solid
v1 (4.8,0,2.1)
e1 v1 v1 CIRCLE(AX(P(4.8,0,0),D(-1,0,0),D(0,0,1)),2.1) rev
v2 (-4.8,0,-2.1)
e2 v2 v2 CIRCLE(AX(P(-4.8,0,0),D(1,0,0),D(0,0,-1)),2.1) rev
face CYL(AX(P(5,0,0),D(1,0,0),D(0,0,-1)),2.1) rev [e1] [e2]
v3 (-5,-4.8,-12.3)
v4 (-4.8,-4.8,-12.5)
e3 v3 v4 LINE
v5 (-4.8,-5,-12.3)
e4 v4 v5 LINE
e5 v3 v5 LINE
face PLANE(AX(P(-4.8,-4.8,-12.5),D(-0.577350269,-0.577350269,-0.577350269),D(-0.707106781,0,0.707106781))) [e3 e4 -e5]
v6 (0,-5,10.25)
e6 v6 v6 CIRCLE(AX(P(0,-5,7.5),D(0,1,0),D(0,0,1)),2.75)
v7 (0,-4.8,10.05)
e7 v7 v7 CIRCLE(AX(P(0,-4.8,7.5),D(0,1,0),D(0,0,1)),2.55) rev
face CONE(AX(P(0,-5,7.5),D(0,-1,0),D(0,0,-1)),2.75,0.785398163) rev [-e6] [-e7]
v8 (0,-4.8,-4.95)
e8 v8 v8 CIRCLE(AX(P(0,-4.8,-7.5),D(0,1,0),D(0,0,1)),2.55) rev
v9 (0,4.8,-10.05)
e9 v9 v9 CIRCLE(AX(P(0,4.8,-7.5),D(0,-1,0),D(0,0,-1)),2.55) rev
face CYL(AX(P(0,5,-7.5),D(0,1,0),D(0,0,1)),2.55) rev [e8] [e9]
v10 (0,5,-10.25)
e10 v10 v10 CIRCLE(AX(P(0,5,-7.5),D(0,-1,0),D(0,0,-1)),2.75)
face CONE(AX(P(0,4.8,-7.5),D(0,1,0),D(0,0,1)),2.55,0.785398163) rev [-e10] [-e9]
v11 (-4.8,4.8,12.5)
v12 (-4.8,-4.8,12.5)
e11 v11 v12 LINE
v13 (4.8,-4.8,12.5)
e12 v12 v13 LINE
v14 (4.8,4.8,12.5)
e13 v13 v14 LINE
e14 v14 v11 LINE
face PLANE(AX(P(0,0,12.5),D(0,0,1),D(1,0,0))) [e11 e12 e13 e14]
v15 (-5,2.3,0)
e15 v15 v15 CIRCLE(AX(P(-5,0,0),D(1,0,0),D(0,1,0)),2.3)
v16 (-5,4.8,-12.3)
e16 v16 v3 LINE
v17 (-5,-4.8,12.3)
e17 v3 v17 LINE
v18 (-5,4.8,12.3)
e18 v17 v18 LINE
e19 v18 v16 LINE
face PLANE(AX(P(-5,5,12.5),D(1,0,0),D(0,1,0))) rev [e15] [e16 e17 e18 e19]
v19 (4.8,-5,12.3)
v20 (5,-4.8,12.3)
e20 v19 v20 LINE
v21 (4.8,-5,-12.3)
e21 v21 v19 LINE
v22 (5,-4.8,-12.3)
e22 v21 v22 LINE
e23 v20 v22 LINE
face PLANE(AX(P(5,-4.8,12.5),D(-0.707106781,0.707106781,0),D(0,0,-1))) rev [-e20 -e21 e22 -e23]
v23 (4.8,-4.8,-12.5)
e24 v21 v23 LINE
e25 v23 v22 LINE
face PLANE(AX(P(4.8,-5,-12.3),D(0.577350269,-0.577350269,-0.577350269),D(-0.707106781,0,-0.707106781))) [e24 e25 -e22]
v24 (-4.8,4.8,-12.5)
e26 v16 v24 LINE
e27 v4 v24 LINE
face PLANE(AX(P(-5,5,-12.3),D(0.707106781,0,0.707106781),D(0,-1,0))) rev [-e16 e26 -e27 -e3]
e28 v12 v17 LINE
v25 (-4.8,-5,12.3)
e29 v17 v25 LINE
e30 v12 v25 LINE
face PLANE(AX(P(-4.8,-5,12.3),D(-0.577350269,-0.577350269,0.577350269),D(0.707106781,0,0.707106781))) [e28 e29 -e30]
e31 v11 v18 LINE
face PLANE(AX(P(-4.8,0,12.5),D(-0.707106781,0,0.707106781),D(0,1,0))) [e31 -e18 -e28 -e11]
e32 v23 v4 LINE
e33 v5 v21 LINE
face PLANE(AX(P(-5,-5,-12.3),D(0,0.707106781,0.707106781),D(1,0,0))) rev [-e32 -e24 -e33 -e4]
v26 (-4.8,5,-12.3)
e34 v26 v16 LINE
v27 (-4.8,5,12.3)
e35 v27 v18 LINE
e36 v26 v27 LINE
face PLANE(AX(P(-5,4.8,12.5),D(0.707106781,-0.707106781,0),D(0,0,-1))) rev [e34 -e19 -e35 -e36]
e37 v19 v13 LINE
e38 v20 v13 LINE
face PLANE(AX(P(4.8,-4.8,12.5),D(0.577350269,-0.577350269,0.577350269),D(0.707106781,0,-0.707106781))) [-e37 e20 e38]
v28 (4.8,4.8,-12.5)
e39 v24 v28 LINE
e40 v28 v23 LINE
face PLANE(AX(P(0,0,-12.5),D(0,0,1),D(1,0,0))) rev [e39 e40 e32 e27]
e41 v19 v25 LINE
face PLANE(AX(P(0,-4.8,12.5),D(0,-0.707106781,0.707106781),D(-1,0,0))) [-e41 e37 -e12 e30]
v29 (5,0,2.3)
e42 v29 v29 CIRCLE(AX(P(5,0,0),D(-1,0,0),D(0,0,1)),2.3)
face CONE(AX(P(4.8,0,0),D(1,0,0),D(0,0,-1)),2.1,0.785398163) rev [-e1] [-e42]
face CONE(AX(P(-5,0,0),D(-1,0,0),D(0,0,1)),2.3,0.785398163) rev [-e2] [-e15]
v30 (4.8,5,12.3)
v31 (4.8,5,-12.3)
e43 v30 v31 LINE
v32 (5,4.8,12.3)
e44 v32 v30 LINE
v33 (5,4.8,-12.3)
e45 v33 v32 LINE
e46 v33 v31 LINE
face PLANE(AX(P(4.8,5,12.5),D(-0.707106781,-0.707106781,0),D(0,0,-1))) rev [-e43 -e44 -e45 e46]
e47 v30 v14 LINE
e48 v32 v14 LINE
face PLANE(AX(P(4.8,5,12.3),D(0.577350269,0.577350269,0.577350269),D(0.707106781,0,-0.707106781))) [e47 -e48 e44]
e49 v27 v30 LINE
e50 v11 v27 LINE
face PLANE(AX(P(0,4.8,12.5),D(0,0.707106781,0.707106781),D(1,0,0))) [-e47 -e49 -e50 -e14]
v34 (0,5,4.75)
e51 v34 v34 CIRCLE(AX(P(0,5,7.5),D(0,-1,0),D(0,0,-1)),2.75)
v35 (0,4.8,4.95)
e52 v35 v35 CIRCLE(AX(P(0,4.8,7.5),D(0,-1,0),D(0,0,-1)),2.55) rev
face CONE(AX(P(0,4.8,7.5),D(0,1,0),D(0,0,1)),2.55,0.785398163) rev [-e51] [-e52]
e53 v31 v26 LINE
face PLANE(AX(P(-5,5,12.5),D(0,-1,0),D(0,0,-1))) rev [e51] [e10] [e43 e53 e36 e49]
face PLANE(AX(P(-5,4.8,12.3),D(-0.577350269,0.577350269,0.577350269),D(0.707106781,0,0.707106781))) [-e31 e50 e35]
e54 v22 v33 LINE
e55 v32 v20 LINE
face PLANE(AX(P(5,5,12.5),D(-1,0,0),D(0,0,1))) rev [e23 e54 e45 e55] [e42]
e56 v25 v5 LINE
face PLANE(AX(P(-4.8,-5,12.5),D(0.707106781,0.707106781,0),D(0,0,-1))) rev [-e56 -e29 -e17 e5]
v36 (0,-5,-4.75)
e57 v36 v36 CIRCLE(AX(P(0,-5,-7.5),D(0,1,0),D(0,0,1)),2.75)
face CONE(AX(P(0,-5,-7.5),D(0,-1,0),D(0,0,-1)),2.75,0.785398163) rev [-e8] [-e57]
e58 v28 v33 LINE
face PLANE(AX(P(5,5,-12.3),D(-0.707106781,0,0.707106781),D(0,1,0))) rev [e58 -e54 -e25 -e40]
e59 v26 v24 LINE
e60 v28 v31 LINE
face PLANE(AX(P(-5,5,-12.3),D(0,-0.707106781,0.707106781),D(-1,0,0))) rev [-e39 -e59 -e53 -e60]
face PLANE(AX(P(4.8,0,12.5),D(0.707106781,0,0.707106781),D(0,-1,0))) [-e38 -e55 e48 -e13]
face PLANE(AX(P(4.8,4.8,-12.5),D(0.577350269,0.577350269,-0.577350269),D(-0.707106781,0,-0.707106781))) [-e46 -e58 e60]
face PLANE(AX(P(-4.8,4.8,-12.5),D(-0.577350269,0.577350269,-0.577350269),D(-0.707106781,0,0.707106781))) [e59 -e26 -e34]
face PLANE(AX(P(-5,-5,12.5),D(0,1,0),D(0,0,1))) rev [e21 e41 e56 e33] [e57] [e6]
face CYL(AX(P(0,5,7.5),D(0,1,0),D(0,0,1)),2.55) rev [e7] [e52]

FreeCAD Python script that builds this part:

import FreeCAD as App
import Part
import Sketcher

V = App.Vector


def add_polygon(sketch, points):
    """Adds a closed chain of lines whose ends are joined by coincident constraints."""
    first, n = sketch.GeometryCount, len(points)
    for a, b in zip(points, points[1:] + points[:1]):
        sketch.addGeometry(Part.LineSegment(App.Vector(*a, 0), App.Vector(*b, 0)), False)
    for i in range(n):
        sketch.addConstraint(Sketcher.Constraint("Coincident", first + i, 2, first + (i + 1) % n, 1))

doc = App.newDocument("Part")
params = doc.addObject("Spreadsheet::Sheet", "Params")
for row, (alias, value) in enumerate([
    ("sketch1_width", "10 mm"),
    ("pad1_length", "25 mm"),
    ("sketch2_diameter", "4.2 mm"),
    ("hole_diameter", "4.2 mm"),
    ("sketch3_diameter", "5.1 mm"),
    ("hole2_diameter", "5.1 mm"),
    ("chamfer_size", "0.2 mm"),
], start=1):
    params.set(f"A{row}", alias)
    params.set(f"B{row}", "=" + value)
    params.setAlias(f"B{row}", alias)

body = doc.addObject("PartDesign::Body", "Body")

# Sketch on XY plane
sketch1 = doc.addObject("Sketcher::SketchObject", "Sketch")
body.addObject(sketch1)
sketch1.AttachmentSupport = (doc.XY_Plane, [""])
sketch1.MapMode = "FlatFace"
add_polygon(sketch1, [(-5, 5), (-5, -5), (5, -5), (5, 5)])  # lines 0-3
sketch1.addConstraint([
    Sketcher.Constraint("Vertical", 0),
    Sketcher.Constraint("Horizontal", 1),
    Sketcher.Constraint("Vertical", 2),
    Sketcher.Constraint("Horizontal", 3),
    Sketcher.Constraint("Symmetric", 0, 2, 2, 2, -1, 1),
    Sketcher.Constraint("Equal", 3, 0),
    Sketcher.Constraint("DistanceX", 1, 1, 1, 2, 10.0),
])
sketch1.setExpression("Constraints[10]", "Params.sketch1_width")
pad1 = doc.addObject("PartDesign::Pad", "Pad")
body.addObject(pad1)
pad1.Profile = sketch1
pad1.setExpression("Length", "Params.pad1_length")
pad1.Midplane = True

# Sketch on YZ plane
sketch2 = doc.addObject("Sketcher::SketchObject", "Sketch001")
body.addObject(sketch2)
sketch2.AttachmentSupport = (doc.YZ_Plane, [""])
sketch2.MapMode = "FlatFace"
sketch2.AttachmentOffset = App.Placement(V(0, 0, 5), App.Rotation())
sketch2.addGeometry(Part.Circle(V(0, 0, 0), V(0, 0, 1), 2.1), False)
sketch2.addConstraint([
    Sketcher.Constraint("Coincident", 0, 3, -1, 1),
    Sketcher.Constraint("Diameter", 0, 4.2),
])
sketch2.setExpression("Constraints[1]", "Params.sketch2_diameter")
doc.recompute()
hole = doc.addObject("PartDesign::Hole", "Hole")
body.addObject(hole)
hole.Profile = sketch2
hole.ThreadType = "None"
hole.setExpression("Diameter", "Params.hole_diameter")
hole.DepthType = "ThroughAll"

# Sketch on XZ plane
sketch3 = doc.addObject("Sketcher::SketchObject", "Sketch002")
body.addObject(sketch3)
sketch3.AttachmentSupport = (doc.XZ_Plane, [""])
sketch3.MapMode = "FlatFace"
sketch3.AttachmentOffset = App.Placement(V(0, 0, -5), App.Rotation())
sketch3.addGeometry([
    Part.Circle(V(0, 7.5, 0), V(0, 0, 1), 2.55),
    Part.Circle(V(0, -7.5, 0), V(0, 0, 1), 2.55),
], False)
sketch3.addConstraint([
    Sketcher.Constraint("Equal", 0, 1),
    Sketcher.Constraint("Symmetric", 0, 3, 1, 3, -1, 1),
    Sketcher.Constraint("PointOnObject", 0, 3, -2),
    Sketcher.Constraint("Diameter", 0, 5.1),
    Sketcher.Constraint("DistanceY", 1, 3, 0, 3, 15.0),
])
sketch3.setExpression("Constraints[3]", "Params.sketch3_diameter")
doc.recompute()
hole2 = doc.addObject("PartDesign::Hole", "Hole001")
body.addObject(hole2)
hole2.Profile = sketch3
hole2.ThreadType = "None"
hole2.setExpression("Diameter", "Params.hole2_diameter")
hole2.DepthType = "ThroughAll"
hole2.Reversed = True
doc.recompute()

chamfer = doc.addObject("PartDesign::Chamfer", "Chamfer")
body.addObject(chamfer)
chamfer.Base = (hole2, ["Edge1"])
chamfer.UseAllEdges = True
chamfer.setExpression("Size", "Params.chamfer_size")

doc.recompute()
